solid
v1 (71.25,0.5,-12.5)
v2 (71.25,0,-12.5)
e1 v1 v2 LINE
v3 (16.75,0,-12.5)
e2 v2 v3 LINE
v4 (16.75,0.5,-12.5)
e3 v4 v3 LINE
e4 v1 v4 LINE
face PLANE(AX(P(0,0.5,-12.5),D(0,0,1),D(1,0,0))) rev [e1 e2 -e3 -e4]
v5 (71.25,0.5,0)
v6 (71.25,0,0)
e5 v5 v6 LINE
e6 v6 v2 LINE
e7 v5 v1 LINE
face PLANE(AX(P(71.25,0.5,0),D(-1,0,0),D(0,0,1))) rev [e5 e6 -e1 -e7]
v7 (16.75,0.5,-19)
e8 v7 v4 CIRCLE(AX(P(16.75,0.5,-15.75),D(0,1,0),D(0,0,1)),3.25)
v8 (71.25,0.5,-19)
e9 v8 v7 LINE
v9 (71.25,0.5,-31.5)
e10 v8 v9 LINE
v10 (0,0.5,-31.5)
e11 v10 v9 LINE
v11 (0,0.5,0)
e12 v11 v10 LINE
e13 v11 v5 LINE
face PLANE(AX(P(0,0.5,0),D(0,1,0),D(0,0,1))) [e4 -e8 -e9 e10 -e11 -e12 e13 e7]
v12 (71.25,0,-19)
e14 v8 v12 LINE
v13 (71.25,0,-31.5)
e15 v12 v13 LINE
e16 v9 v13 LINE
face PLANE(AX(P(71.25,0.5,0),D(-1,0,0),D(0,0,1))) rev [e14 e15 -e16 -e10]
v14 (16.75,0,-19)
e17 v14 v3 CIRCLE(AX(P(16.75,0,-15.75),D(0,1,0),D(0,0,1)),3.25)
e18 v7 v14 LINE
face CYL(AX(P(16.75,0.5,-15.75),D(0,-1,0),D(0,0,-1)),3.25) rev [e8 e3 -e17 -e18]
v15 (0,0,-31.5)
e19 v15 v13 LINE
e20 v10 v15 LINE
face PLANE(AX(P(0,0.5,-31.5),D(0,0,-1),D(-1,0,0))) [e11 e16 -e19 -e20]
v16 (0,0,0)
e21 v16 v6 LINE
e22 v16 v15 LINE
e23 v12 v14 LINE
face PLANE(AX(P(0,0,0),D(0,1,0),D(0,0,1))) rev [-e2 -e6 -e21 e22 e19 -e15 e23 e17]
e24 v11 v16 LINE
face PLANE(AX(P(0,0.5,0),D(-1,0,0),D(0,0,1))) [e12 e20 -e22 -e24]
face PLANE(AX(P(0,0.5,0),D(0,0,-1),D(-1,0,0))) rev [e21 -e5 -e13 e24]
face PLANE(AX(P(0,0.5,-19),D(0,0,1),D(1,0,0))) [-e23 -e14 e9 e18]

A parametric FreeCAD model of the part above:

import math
import FreeCAD as App
import Part
import Sketcher
from FreeCAD import Vector

doc = App.newDocument("Part")
body = doc.addObject("PartDesign::Body", "Body")

# Sketch on XZ plane
sketch1 = doc.addObject("Sketcher::SketchObject", "Sketch")
body.addObject(sketch1)
sketch1.AttachmentSupport = (doc.XZ_Plane, [""])
sketch1.MapMode = "FlatFace"
sketch1.addGeometry([
    Part.LineSegment(Vector(0, -31.5, 0), Vector(0, 0, 0)),  # 0
    Part.LineSegment(Vector(0, 0, 0), Vector(71.2, 0, 0)),  # 1
    Part.LineSegment(Vector(71.2, 0, 0), Vector(71.2, -12.5, 0)),  # 2
    Part.LineSegment(Vector(71.2, -12.5, 0), Vector(16.8, -12.5, 0)),  # 3
    Part.ArcOfCircle(Part.Circle(Vector(16.8, -15.8, 0), Vector(0, 0, 1), 3.2), math.radians(90), math.radians(270)),  # 4
    Part.LineSegment(Vector(16.8, -19, 0), Vector(71.2, -19, 0)),  # 5
    Part.LineSegment(Vector(71.2, -19, 0), Vector(71.2, -31.5, 0)),  # 6
    Part.LineSegment(Vector(71.2, -31.5, 0), Vector(0, -31.5, 0)),  # 7
], False)
sketch1.addConstraint([
    Sketcher.Constraint("Coincident", 0, 2, 1, 1),
    Sketcher.Constraint("Coincident", 1, 2, 2, 1),
    Sketcher.Constraint("Coincident", 2, 2, 3, 1),
    Sketcher.Constraint("Tangent", 3, 2, 4, 1),
    Sketcher.Constraint("Tangent", 4, 2, 5, 1),
    Sketcher.Constraint("Coincident", 5, 2, 6, 1),
    Sketcher.Constraint("Coincident", 6, 2, 7, 1),
    Sketcher.Constraint("Coincident", 7, 2, 0, 1),
    Sketcher.Constraint("Vertical", 0),
    Sketcher.Constraint("Horizontal", 1),
    Sketcher.Constraint("Vertical", 2),
    Sketcher.Constraint("Horizontal", 3),
    Sketcher.Constraint("Horizontal", 5),
    Sketcher.Constraint("Vertical", 6),
    Sketcher.Constraint("Horizontal", 7),
    Sketcher.Constraint("Coincident", 0, 2, -1, 1),
    Sketcher.Constraint("Vertical", 2, 2, 5, 2),
    Sketcher.Constraint("Equal", 2, 6),
    Sketcher.Constraint("Radius", 4, 3.25),
    Sketcher.Constraint("DistanceX", 3, 2, 3, 1, 54.5),
    Sketcher.Constraint("DistanceY", 0, 1, 0, 2, 31.5),
    Sketcher.Constraint("DistanceX", 1, 1, 1, 2, 71.25),
])
pad1 = doc.addObject("PartDesign::Pad", "Pad")
body.addObject(pad1)
pad1.Profile = sketch1
pad1.Length = 0.5
pad1.Reversed = True

doc.recompute()
